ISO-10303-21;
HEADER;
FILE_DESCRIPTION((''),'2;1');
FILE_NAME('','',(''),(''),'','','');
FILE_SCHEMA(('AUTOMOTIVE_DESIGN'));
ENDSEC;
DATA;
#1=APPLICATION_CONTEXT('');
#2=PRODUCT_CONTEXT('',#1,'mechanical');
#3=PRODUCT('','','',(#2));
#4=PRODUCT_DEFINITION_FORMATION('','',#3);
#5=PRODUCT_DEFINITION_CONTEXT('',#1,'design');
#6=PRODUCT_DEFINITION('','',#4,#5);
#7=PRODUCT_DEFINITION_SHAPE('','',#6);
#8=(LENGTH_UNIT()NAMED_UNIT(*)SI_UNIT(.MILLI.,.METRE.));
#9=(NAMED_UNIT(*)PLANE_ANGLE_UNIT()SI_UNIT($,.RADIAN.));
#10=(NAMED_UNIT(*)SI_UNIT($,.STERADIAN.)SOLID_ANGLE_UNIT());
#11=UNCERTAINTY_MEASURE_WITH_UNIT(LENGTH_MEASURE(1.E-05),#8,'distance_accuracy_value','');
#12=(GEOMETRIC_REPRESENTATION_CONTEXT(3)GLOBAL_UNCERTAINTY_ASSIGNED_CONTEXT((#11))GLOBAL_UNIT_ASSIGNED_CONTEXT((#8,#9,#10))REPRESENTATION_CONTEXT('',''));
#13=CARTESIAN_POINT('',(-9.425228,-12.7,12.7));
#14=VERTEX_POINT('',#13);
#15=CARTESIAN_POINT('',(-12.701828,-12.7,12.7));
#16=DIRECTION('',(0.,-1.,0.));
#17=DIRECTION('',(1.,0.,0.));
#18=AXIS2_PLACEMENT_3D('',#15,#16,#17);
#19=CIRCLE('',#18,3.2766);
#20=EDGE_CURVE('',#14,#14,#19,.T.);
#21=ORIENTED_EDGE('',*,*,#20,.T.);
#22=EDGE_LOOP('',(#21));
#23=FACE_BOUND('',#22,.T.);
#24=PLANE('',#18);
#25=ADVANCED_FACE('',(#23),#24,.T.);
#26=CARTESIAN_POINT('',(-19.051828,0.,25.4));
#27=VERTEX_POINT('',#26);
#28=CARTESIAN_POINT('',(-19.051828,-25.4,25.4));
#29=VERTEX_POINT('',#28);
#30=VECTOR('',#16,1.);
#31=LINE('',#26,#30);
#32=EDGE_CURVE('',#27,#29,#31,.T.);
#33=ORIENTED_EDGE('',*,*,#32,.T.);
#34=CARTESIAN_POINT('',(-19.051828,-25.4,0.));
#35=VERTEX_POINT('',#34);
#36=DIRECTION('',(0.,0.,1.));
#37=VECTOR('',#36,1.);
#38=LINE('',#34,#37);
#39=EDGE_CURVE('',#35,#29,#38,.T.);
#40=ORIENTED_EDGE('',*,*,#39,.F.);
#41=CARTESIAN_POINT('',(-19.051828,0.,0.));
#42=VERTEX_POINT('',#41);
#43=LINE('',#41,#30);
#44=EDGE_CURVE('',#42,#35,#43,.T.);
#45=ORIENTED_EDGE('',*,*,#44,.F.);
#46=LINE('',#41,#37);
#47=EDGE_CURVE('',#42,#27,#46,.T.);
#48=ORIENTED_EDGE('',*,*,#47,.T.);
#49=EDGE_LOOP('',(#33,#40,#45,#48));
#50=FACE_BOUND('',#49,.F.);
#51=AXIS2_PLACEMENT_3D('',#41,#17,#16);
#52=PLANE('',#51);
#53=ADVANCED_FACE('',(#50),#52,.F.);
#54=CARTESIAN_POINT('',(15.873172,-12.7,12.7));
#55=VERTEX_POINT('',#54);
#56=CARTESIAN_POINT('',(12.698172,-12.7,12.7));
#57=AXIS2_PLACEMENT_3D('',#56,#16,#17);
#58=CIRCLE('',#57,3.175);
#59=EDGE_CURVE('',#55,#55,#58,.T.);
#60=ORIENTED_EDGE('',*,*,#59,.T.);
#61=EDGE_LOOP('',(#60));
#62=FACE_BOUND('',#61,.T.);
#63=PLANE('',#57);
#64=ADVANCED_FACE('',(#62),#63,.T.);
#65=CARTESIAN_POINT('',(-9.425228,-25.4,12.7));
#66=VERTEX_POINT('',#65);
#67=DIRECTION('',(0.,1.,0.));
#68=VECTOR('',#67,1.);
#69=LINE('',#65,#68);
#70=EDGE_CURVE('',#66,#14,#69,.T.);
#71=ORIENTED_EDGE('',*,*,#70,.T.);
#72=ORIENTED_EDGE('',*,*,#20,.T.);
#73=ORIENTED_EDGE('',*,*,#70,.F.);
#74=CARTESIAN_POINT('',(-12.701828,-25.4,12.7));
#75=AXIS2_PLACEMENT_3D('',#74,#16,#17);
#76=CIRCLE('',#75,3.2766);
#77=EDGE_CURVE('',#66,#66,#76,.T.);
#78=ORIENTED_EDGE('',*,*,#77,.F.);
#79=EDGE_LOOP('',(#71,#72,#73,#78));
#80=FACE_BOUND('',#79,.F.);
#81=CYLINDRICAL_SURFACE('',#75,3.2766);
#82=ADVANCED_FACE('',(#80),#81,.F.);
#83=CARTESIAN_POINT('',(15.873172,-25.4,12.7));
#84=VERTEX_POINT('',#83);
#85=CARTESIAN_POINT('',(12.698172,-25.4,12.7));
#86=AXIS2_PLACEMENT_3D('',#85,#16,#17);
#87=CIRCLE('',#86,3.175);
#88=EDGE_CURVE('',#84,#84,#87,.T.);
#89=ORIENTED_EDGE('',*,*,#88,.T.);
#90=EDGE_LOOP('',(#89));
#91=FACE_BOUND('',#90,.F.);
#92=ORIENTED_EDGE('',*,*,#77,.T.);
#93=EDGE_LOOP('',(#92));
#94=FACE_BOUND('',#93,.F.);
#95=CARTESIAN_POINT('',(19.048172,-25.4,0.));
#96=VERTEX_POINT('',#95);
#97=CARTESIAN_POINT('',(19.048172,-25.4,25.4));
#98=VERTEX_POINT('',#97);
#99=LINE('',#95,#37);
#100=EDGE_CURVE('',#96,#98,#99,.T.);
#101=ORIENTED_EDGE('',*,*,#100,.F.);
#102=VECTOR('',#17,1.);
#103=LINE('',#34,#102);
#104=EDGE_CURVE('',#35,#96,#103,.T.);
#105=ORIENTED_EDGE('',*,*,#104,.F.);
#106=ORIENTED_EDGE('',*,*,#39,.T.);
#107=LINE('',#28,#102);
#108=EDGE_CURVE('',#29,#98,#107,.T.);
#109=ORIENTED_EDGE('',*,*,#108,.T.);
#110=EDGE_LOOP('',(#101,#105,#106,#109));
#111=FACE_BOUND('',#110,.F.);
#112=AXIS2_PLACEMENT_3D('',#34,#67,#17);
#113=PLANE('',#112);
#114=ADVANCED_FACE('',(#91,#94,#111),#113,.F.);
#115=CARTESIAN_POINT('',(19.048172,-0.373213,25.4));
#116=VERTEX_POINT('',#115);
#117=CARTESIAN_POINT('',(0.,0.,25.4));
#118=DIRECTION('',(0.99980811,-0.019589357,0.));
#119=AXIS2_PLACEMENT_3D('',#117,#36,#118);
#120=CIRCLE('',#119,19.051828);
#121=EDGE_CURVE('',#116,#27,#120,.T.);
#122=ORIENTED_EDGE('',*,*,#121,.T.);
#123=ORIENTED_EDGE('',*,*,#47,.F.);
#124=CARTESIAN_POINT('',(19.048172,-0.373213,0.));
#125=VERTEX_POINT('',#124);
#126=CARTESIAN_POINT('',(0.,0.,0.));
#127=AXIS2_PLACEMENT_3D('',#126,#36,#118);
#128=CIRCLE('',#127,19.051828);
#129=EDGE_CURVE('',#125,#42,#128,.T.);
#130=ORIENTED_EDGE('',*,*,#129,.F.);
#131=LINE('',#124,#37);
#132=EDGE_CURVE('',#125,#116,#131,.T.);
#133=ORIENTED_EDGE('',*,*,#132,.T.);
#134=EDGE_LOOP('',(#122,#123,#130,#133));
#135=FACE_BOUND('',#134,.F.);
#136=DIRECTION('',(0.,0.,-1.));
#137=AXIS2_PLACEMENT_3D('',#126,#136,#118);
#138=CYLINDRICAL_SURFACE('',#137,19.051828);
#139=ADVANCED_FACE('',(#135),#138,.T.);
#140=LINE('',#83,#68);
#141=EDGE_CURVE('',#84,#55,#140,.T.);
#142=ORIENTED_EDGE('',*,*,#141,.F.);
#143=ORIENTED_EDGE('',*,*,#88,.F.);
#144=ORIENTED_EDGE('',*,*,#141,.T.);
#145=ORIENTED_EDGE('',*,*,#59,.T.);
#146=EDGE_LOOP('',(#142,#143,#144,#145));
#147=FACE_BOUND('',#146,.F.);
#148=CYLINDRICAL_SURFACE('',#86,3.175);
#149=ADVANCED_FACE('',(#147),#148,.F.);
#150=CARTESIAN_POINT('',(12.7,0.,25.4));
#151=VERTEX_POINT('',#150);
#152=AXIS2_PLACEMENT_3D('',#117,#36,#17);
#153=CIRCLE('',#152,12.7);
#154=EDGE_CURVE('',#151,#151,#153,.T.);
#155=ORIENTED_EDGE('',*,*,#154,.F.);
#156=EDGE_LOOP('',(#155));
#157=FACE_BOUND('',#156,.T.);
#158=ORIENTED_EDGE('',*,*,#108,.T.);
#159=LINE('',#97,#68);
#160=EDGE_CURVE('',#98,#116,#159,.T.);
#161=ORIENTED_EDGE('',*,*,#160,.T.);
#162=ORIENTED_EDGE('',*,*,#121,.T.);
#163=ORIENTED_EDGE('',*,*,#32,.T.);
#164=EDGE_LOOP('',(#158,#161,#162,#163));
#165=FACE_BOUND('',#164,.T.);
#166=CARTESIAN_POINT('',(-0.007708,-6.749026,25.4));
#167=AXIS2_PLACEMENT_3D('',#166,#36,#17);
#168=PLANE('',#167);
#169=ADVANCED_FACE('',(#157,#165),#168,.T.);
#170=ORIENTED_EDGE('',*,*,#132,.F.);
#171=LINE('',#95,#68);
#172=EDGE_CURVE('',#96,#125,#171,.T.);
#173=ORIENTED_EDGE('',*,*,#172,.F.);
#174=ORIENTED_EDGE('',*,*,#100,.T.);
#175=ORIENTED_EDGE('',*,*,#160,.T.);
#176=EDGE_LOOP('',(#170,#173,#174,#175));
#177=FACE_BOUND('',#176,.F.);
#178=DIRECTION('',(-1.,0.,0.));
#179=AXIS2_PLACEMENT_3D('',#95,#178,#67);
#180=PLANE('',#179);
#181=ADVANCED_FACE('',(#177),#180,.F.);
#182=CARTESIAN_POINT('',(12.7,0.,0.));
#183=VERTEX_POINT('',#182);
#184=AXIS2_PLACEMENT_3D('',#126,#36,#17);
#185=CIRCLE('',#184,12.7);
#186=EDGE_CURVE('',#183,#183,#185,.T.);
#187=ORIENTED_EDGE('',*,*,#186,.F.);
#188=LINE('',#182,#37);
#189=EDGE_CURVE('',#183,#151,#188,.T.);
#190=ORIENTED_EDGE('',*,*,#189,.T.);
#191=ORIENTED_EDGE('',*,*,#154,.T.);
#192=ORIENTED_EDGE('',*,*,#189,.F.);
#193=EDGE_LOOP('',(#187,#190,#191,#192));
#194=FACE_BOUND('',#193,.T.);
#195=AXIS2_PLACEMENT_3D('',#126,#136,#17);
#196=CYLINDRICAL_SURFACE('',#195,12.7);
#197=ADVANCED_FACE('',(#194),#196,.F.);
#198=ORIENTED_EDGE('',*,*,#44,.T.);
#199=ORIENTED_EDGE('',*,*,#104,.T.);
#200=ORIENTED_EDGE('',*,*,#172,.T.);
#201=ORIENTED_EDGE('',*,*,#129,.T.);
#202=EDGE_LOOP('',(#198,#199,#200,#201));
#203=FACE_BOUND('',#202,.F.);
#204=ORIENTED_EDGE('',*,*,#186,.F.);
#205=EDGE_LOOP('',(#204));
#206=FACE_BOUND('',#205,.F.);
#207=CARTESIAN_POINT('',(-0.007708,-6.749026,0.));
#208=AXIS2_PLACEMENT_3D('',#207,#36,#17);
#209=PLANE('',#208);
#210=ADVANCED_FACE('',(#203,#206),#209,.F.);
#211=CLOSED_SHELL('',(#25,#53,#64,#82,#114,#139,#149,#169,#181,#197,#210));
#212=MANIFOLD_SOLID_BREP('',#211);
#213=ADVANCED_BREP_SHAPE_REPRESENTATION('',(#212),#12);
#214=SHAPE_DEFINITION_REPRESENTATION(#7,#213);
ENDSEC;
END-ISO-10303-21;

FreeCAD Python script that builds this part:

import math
import FreeCAD as App
import Part
import Sketcher

V = App.Vector
Q = App.Units.Quantity

doc = App.newDocument("Part")
body = doc.addObject("PartDesign::Body", "Body")

# Sketch on XY plane
sketch1 = body.newObject("Sketcher::SketchObject", "Sketch")
sketch1.AttachmentSupport = (doc.getObject("XY_Plane"), [""])
sketch1.MapMode = "FlatFace"
sketch1.addGeometry([
    Part.LineSegment(V(19, -25, 0), V(19, 0, 0)),  # 0
    Part.ArcOfCircle(Part.Circle(V(0, 0, 0), V(0, 0, 1), 19), math.radians(-1), math.radians(180)),  # 1
    Part.LineSegment(V(-19, 0, 0), V(-19, -25, 0)),  # 2
    Part.LineSegment(V(-19, -25, 0), V(19, -25, 0)),  # 3
    Part.Circle(V(0, 0, 0), V(0, 0, 1), 13),  # 4
], False)
sketch1.addConstraint([
    Sketcher.Constraint("Coincident", 0, 2, 1, 1),
    Sketcher.Constraint("Tangent", 1, 2, 2, 1),
    Sketcher.Constraint("Coincident", 2, 2, 3, 1),
    Sketcher.Constraint("Coincident", 3, 2, 0, 1),
    Sketcher.Constraint("Vertical", 0),
    Sketcher.Constraint("Vertical", 2),
    Sketcher.Constraint("Horizontal", 3),
    Sketcher.Constraint("Coincident", 1, 3, -1, 1),
    Sketcher.Constraint("Coincident", 4, 3, -1, 1),
    Sketcher.Constraint("Diameter", 4, Q("1 in")),
    Sketcher.Constraint("DistanceY", 2, 2, 2, 1, Q("1 in")),
    Sketcher.Constraint("DistanceX", 3, 1, 3, 2, Q("1.5 in")),
    Sketcher.Constraint("Radius", 1, 19.051828),
])
pad1 = body.newObject("PartDesign::Pad", "Pad")
pad1.Profile = sketch1
pad1.Length = Q("1 in")

# Sketch on XZ plane
sketch2 = body.newObject("Sketcher::SketchObject", "Sketch001")
sketch2.AttachmentSupport = (doc.getObject("XZ_Plane"), [""])
sketch2.MapMode = "FlatFace"
sketch2.AttachmentOffset = App.Placement(V(0, 0, 1 * 25.4), App.Rotation())
sketch2.addGeometry([
    Part.Circle(V(-12.7, 12.7, 0), V(0, 0, 1), 3.3),
    Part.Circle(V(12.7, 12.7, 0), V(0, 0, 1), 3.2),
], False)
sketch2.addConstraint([
    Sketcher.Constraint("Horizontal", 0, 3, 1, 3),
    Sketcher.Constraint("Diameter", 1, Q("0.25 in")),
    Sketcher.Constraint("Diameter", 0, Q("0.258 in")),
    Sketcher.Constraint("DistanceX", 0, 3, 1, 3, Q("1 in")),
    Sketcher.Constraint("DistanceY", -1, 1, 0, 3, Q("0.5 in")),
    Sketcher.Constraint("DistanceX", 0, 3, -1, 1, 12.701828),
])
pocket1 = body.newObject("PartDesign::Pocket", "Pocket")
pocket1.Profile = sketch2
pocket1.Length = Q("0.5 in")

doc.recompute()
